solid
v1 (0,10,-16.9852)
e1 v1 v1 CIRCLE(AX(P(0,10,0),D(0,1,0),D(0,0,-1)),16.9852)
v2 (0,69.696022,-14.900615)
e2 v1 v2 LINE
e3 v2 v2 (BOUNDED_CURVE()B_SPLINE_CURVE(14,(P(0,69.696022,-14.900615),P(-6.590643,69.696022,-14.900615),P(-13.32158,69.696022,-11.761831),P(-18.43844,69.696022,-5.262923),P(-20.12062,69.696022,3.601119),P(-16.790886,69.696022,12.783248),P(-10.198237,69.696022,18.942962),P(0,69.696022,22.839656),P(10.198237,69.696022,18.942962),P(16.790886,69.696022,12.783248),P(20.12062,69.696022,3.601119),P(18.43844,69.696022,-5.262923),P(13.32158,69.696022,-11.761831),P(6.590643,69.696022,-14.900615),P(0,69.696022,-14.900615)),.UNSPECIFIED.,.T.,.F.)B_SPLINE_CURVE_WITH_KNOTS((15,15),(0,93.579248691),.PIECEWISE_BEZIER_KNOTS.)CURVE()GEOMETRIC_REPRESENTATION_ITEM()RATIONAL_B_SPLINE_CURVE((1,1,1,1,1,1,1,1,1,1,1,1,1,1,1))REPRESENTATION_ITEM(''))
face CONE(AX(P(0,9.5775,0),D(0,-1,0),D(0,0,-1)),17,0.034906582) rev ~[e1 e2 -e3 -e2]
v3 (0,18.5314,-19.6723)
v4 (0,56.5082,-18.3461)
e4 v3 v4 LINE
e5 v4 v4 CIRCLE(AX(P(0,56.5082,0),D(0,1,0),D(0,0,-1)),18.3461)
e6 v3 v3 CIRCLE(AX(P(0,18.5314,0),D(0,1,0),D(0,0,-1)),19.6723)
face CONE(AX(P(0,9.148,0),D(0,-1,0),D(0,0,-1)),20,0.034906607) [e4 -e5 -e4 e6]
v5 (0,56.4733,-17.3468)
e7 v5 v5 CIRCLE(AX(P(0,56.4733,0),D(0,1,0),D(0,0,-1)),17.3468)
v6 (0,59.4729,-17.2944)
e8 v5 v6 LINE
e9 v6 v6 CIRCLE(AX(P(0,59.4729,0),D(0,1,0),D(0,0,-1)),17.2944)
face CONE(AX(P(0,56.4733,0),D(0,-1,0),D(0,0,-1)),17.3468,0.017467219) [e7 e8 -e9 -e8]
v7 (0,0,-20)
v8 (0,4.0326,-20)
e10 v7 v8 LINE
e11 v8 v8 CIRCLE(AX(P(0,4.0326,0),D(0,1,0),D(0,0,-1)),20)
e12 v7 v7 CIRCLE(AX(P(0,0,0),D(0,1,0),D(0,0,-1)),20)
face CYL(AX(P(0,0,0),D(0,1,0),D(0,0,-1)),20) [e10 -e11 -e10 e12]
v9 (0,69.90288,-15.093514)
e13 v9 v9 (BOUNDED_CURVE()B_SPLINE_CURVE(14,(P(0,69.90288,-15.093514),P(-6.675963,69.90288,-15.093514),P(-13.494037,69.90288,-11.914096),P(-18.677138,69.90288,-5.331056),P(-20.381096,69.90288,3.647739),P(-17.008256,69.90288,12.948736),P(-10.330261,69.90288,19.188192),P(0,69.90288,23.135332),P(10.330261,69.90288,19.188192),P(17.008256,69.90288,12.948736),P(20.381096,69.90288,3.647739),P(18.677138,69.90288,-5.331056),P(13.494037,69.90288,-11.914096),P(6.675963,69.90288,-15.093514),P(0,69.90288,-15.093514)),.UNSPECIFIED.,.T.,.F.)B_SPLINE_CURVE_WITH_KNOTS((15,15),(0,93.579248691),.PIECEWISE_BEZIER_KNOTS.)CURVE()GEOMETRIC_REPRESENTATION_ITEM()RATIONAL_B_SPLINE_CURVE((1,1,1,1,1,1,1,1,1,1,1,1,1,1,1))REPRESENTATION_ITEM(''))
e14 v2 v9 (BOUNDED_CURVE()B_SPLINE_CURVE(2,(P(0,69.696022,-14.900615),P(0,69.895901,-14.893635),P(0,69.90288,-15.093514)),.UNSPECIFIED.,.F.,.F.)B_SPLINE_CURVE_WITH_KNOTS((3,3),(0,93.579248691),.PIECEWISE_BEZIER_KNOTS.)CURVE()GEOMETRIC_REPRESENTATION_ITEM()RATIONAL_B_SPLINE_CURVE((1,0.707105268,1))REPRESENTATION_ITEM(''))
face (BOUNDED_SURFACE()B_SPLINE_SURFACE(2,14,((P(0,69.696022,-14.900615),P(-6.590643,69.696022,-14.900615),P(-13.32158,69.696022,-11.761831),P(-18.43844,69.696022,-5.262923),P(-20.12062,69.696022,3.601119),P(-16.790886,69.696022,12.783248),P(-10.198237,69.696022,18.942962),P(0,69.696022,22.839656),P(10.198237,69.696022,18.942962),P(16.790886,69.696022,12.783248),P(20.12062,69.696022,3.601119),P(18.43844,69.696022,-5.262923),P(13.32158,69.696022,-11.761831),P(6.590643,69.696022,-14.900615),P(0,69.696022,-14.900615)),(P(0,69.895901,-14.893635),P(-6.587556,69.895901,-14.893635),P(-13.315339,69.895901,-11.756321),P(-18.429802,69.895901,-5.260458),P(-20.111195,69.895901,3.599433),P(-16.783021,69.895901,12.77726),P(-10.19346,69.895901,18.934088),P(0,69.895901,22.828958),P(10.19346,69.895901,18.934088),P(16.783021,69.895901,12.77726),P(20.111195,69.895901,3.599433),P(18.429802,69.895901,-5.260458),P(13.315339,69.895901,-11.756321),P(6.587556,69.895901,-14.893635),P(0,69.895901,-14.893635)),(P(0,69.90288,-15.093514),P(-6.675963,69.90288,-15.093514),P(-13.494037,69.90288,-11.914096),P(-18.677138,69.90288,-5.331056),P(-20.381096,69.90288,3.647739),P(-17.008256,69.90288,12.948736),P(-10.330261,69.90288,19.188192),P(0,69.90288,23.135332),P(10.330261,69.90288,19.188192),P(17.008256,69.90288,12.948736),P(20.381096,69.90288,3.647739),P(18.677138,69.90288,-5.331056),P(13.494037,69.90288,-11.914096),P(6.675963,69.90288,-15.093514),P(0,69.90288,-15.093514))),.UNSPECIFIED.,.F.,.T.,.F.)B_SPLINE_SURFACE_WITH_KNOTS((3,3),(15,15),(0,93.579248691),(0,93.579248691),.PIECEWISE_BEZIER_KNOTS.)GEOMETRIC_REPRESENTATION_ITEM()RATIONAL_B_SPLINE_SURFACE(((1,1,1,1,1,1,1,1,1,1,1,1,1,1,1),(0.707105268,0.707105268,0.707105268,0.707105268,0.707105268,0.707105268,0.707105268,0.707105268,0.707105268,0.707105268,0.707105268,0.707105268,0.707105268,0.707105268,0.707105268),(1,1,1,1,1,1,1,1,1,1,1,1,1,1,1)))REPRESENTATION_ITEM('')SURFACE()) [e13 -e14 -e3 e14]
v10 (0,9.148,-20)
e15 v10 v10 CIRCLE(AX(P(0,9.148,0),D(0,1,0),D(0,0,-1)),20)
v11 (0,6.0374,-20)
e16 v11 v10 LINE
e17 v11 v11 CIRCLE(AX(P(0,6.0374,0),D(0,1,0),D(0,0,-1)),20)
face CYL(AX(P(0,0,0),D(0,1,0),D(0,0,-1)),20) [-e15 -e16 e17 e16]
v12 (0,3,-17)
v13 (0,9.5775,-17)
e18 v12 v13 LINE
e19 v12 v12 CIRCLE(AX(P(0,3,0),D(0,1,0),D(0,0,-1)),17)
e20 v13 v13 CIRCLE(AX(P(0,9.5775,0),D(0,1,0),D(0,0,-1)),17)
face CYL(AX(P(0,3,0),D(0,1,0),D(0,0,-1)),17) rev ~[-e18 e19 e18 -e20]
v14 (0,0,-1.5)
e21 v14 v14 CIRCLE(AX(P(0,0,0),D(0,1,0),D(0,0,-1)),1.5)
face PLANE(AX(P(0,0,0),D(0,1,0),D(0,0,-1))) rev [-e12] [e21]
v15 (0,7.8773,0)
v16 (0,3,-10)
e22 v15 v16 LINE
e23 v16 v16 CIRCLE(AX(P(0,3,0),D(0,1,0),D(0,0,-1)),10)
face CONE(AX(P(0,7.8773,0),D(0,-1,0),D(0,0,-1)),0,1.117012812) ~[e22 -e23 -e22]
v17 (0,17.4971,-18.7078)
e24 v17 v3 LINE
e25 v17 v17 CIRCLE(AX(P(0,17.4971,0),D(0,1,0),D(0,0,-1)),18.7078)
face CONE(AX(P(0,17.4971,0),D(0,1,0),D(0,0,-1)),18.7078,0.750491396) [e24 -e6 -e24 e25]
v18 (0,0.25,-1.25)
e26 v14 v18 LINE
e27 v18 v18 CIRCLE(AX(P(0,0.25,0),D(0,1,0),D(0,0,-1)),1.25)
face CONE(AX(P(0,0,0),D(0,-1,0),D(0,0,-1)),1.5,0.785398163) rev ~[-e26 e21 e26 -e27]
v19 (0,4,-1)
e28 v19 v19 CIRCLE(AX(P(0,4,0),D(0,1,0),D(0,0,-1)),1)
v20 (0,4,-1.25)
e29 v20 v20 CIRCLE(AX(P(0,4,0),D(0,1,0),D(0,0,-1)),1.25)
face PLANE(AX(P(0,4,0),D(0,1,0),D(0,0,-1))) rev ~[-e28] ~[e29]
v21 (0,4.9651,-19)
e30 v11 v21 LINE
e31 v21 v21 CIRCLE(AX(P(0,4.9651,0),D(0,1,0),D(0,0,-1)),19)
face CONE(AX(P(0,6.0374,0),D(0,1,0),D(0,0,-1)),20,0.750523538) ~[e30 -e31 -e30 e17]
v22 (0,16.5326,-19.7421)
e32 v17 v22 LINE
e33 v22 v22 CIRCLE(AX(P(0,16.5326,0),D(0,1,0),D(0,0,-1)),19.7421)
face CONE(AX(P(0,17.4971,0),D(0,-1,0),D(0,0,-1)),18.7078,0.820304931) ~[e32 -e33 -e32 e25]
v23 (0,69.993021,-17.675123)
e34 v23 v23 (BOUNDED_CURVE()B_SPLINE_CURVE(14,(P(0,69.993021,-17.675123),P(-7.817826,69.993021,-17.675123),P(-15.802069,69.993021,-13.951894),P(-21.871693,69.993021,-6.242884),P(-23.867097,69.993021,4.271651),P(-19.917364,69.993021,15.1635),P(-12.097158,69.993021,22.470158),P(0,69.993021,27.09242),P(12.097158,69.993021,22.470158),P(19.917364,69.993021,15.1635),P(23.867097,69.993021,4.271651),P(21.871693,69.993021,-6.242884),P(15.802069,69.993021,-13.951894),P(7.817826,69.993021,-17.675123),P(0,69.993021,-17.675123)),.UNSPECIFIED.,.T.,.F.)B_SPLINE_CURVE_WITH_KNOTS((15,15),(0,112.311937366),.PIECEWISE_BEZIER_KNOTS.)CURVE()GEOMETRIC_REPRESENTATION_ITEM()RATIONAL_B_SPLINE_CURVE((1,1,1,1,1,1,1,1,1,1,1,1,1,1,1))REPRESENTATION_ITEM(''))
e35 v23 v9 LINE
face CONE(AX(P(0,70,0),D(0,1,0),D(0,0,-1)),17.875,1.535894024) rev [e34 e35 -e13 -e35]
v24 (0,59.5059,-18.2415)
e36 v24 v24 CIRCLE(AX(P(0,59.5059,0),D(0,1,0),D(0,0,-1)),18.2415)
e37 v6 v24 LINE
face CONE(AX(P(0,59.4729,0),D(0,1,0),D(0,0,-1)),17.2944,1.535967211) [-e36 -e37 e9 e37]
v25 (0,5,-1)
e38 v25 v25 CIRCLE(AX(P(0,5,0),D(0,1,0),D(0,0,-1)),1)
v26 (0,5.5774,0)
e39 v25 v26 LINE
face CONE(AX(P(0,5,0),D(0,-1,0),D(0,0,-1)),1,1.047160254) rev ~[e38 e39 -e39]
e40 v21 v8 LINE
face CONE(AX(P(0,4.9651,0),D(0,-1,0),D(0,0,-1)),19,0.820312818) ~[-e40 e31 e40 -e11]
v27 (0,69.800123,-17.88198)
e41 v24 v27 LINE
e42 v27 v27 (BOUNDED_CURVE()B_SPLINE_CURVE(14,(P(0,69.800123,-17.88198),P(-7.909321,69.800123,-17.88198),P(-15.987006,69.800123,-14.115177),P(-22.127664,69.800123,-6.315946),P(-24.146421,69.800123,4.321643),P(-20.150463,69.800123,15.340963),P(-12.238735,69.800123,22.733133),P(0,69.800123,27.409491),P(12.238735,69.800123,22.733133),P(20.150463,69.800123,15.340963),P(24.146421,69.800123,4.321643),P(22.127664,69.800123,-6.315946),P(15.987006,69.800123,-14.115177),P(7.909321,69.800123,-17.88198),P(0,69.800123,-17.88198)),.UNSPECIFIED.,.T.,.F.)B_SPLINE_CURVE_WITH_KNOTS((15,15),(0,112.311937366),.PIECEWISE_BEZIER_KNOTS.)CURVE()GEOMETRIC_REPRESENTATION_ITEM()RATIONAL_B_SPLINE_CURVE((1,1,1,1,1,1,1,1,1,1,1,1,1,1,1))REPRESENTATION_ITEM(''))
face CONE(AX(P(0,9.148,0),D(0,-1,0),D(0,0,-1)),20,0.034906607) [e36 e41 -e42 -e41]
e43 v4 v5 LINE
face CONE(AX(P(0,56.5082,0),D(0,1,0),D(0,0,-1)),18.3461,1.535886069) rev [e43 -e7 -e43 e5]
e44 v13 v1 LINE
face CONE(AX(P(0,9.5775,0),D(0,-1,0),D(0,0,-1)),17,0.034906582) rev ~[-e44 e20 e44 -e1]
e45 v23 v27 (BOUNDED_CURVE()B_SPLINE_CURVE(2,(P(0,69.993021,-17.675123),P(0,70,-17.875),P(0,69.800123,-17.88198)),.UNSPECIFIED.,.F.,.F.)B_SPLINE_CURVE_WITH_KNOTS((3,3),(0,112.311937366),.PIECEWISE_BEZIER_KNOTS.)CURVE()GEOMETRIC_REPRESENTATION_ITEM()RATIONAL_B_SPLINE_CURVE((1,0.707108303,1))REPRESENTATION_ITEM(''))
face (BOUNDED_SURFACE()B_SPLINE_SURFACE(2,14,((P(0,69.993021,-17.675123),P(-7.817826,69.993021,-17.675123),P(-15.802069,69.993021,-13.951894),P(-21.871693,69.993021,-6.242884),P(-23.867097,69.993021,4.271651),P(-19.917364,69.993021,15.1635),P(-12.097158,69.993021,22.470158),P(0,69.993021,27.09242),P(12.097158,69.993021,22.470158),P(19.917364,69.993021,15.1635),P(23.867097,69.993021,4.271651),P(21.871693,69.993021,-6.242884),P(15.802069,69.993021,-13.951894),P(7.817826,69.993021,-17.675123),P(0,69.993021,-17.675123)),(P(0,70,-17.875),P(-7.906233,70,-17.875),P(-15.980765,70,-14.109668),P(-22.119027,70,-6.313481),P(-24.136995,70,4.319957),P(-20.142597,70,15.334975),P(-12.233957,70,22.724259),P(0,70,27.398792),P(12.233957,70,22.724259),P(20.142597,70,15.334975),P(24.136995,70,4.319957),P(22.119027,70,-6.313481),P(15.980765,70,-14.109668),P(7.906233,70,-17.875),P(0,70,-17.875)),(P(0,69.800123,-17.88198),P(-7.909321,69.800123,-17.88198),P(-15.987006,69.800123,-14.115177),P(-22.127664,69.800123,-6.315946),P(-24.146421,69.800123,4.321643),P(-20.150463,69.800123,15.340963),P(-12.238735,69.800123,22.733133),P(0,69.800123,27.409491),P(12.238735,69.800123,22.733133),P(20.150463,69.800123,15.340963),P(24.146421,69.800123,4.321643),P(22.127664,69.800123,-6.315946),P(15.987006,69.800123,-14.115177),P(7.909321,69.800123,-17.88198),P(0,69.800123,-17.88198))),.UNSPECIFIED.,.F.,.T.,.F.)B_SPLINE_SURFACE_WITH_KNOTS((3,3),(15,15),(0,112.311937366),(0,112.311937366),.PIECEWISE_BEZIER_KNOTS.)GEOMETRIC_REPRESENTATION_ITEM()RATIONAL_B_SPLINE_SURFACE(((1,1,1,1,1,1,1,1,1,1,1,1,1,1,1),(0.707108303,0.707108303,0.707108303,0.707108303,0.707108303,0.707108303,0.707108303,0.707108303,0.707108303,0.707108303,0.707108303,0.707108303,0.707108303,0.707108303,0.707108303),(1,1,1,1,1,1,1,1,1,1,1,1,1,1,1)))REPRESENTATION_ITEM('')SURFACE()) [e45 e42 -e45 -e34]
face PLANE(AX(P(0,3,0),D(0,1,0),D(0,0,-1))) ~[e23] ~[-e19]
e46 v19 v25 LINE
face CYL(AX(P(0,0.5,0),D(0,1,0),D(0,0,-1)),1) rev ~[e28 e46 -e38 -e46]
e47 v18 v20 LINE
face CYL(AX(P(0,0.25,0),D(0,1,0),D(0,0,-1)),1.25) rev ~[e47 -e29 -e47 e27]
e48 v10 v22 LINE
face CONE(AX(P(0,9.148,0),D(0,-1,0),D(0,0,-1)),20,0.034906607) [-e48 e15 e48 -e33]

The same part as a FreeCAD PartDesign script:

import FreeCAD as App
import Part
import Sketcher
Q = App.Units.Quantity


def edges_at(feature, points):
    """Names of the edges that pass closest to the given points."""
    edges = feature.Shape.Edges
    near = lambda p: min(range(len(edges)), key=lambda i: edges[i].distToShape(Part.Vertex(*p))[0])
    return sorted({f"Edge{near(p) + 1}" for p in points})


def add_polygon(sketch, points):
    """Adds a closed chain of lines whose ends are joined by coincident constraints."""
    first, n = sketch.GeometryCount, len(points)
    for a, b in zip(points, points[1:] + points[:1]):
        sketch.addGeometry(Part.LineSegment(App.Vector(*a, 0), App.Vector(*b, 0)), False)
    for i in range(n):
        sketch.addConstraint(Sketcher.Constraint("Coincident", first + i, 2, first + (i + 1) % n, 1))

doc = App.newDocument("Part")
body = doc.addObject("PartDesign::Body", "Body")

sketch1 = doc.addObject("Sketcher::SketchObject", "Sketch")
body.addObject(sketch1)
sketch1.AttachmentSupport = (doc.YZ_Plane, [""])
sketch1.MapMode = "FlatFace"
add_polygon(sketch1, [(0.25, -1.25), (0, -1.5), (0, -20), (4.03, -20), (4.97, -19), (6.04, -20), (9.15, -20), (16.53, -19.74), (17.5, -18.71), (18.53, -19.67), (56.51, -18.35), (56.47, -17.35), (59.47, -17.29), (59.51, -18.24), (70, -17.88), (69.9, -14.89), (9.58, -17), (3, -17), (3, -10), (7.88, 0), (5.58, 0), (5, -1), (4, -1), (4, -1.25)])
sketch1.addConstraint(Sketcher.Constraint("Vertical", 1))
sketch1.addConstraint(Sketcher.Constraint("Horizontal", 2))
sketch1.addConstraint(Sketcher.Constraint("Horizontal", 5))
sketch1.addConstraint(Sketcher.Constraint("Horizontal", 16))
sketch1.addConstraint(Sketcher.Constraint("Vertical", 17))
sketch1.addConstraint(Sketcher.Constraint("Horizontal", 19))
sketch1.addConstraint(Sketcher.Constraint("Horizontal", 21))
sketch1.addConstraint(Sketcher.Constraint("Vertical", 22))
sketch1.addConstraint(Sketcher.Constraint("Horizontal", 23))
sketch1.addConstraint(Sketcher.Constraint("PointOnObject", 0, 2, -2))
sketch1.addConstraint(Sketcher.Constraint("PointOnObject", 18, 2, -1))
sketch1.addConstraint(Sketcher.Constraint("Perpendicular", 3, 4))
sketch1.addConstraint(Sketcher.Constraint("Perpendicular", 4, 7))
sketch1.addConstraint(Sketcher.Constraint("Perpendicular", 7, 8))
sketch1.addConstraint(Sketcher.Constraint("Parallel", 6, 9))
sketch1.addConstraint(Sketcher.Constraint("Perpendicular", 9, 10))
sketch1.addConstraint(Sketcher.Constraint("Parallel", 10, 12))
sketch1.addConstraint(Sketcher.Constraint("Perpendicular", 12, 13))
sketch1.addConstraint(Sketcher.Constraint("Perpendicular", 13, 14))
sketch1.addConstraint(Sketcher.Constraint("Perpendicular", 14, 15))
sketch1.addConstraint(Sketcher.Constraint("Horizontal", 2, 2, 4, 2))
sketch1.addConstraint(Sketcher.Constraint("Equal", 7, 8))
sketch1.addConstraint(Sketcher.Constraint("DistanceX", 21, 2, 21, 1, 1.0))
sketch1.addConstraint(Sketcher.Constraint("DistanceY", 17, 1, 17, 2, 7.0))
sketch1.addConstraint(Sketcher.Constraint("Distance", 10, 1.0))
sketch1.addConstraint(Sketcher.Constraint("Distance", 11, 3.0))
sketch1.addConstraint(Sketcher.Constraint("DistanceY", 1, 2, -1, 1, 20.0))
sketch1.addConstraint(Sketcher.Constraint("DistanceX", -1, 1, 13, 2, 70.0))
sketch1.addConstraint(Sketcher.Constraint("DistanceX", -1, 1, 16, 2, 3.0))
sketch1.addConstraint(Sketcher.Constraint("DistanceY", 17, 2, -1, 1, 10.0))
sketch1.addConstraint(Sketcher.Constraint("DistanceX", -1, 1, 20, 2, 5.0))
sketch1.addConstraint(Sketcher.Constraint("DistanceY", 20, 2, -1, 1, 1.0))
sketch1.addConstraint(Sketcher.Constraint("DistanceY", 2, 2, 3, 2, 1.0))
sketch1.addConstraint(Sketcher.Constraint("DistanceX", 19, 2, 15, 2, 4.0))
sketch1.addConstraint(Sketcher.Constraint("DistanceY", 0, 2, 20, 2, 0.5))
sketch1.addConstraint(Sketcher.Constraint("DistanceY", 22, 2, -1, 1, 1.25))
sketch1.addConstraint(Sketcher.Constraint("Angle", 0, Q("-135 deg")))
sketch1.addConstraint(Sketcher.Constraint("Angle", 3, Q("47.0005 deg")))
sketch1.addConstraint(Sketcher.Constraint("Angle", 6, Q("2 deg")))
sketch1.addConstraint(Sketcher.Constraint("Angle", 11, Q("1.0008 deg")))
sketch1.addConstraint(Sketcher.Constraint("Angle", 18, Q("64 deg")))
sketch1.addConstraint(Sketcher.Constraint("Distance", 9, 38.0))
sketch1.addConstraint(Sketcher.Constraint("DistanceX", 19, 2, 19, 1, 2.3))
sketch1.addConstraint(Sketcher.Constraint("DistanceY", 13, 2, -1, 1, 17.875))
sketch1.addConstraint(Sketcher.Constraint("DistanceX", 2, 2, 6, 2, 12.5))
sketch1.addConstraint(Sketcher.Constraint("DistanceX", 12, 2, 14, 2, 10.39))
sketch1.addConstraint(Sketcher.Constraint("DistanceX", 4, 2, 15, 2, 3.54))
sketch1.addConstraint(Sketcher.Constraint("Distance", 6, 7.389))
revolution = doc.addObject("PartDesign::Revolution", "Revolution")
body.addObject(revolution)
revolution.Profile = sketch1
revolution.ReferenceAxis = (sketch1, ["H_Axis"])
revolution.Angle = 360
doc.recompute()

fillet = doc.addObject("PartDesign::Fillet", "Fillet")
body.addObject(fillet)
fillet.Base = (revolution, edges_at(revolution, [(0, 70, 17.875), (0, 69.896, 14.894)]))
fillet.Radius = 0.2

doc.recompute()
